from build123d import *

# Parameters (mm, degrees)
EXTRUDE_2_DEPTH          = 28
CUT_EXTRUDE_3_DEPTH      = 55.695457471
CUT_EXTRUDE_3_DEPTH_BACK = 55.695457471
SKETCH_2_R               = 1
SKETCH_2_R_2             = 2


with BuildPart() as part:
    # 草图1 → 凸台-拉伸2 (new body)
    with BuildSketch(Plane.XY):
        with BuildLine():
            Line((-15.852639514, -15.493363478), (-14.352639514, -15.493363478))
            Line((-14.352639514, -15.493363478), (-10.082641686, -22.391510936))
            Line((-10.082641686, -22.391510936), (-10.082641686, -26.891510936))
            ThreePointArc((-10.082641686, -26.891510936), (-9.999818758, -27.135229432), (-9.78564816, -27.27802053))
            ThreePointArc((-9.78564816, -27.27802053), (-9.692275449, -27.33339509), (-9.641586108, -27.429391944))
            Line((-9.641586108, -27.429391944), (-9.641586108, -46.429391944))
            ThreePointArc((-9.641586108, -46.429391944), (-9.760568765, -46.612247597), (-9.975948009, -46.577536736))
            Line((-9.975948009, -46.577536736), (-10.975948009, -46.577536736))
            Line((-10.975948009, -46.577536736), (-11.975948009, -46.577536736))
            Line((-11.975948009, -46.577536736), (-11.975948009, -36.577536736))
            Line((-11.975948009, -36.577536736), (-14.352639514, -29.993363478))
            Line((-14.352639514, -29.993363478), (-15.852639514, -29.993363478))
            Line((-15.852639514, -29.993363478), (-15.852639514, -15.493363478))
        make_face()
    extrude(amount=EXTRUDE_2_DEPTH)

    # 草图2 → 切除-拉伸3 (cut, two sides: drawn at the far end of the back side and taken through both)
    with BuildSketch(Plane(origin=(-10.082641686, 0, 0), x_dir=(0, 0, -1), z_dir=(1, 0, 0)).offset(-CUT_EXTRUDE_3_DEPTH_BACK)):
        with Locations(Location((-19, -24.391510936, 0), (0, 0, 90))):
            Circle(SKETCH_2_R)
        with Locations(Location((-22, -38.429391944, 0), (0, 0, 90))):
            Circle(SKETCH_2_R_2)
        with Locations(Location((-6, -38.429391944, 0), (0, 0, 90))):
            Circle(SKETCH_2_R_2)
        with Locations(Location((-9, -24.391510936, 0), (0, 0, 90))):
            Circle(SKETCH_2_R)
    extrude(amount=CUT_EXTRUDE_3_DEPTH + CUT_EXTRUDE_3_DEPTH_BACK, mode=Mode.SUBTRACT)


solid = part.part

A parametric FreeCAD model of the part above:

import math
import FreeCAD as App
import Part
import Sketcher

V = App.Vector

doc = App.newDocument("Part")
body = doc.addObject("PartDesign::Body", "Body")

sketch1 = doc.addObject("Sketcher::SketchObject", "Sketch")
body.addObject(sketch1)
sketch1.AttachmentSupport = (doc.XY_Plane, [""])
sketch1.MapMode = "FlatFace"
sketch1.addGeometry([
    Part.LineSegment(V(-14.35, -15.49, 0), V(-15.85, -15.49, 0)),
    Part.LineSegment(V(-15.85, -15.49, 0), V(-15.85, -29.99, 0)),
    Part.LineSegment(V(-15.85, -29.99, 0), V(-14.35, -29.99, 0)),
    Part.LineSegment(V(-14.35, -29.99, 0), V(-11.98, -36.58, 0)),
    Part.LineSegment(V(-11.98, -36.58, 0), V(-11.98, -46.58, 0)),
    Part.LineSegment(V(-11.98, -46.58, 0), V(-9.98, -46.58, 0)),
    Part.ArcOfCircle(Part.Circle(V(-9.84, -46.43, 0), V(0, 0, 1), 0.2), math.radians(-132), math.radians(0)),
    Part.LineSegment(V(-9.64, -46.43, 0), V(-9.64, -27.43, 0)),
    Part.ArcOfCircle(Part.Circle(V(-9.84, -27.47, 0), V(0, 0, 1), 0.2), math.radians(12), math.radians(75)),
    Part.ArcOfCircle(Part.Circle(V(-9.68, -26.89, 0), V(0, 0, 1), 0.4), math.radians(180), math.radians(255)),
    Part.LineSegment(V(-10.08, -26.89, 0), V(-10.08, -22.39, 0)),
    Part.LineSegment(V(-10.08, -22.39, 0), V(-14.35, -15.49, 0)),
], False)
sketch1.addConstraint([
    Sketcher.Constraint("Coincident", 0, 2, 1, 1),
    Sketcher.Constraint("Coincident", 1, 2, 2, 1),
    Sketcher.Constraint("Coincident", 2, 2, 3, 1),
    Sketcher.Constraint("Coincident", 3, 2, 4, 1),
    Sketcher.Constraint("Coincident", 4, 2, 5, 1),
    Sketcher.Constraint("Coincident", 5, 2, 6, 1),
    Sketcher.Constraint("Tangent", 6, 2, 7, 1),
    Sketcher.Constraint("Coincident", 7, 2, 8, 1),
    Sketcher.Constraint("Tangent", 8, 2, 9, 2),
    Sketcher.Constraint("Tangent", 9, 1, 10, 1),
    Sketcher.Constraint("Coincident", 10, 2, 11, 1),
    Sketcher.Constraint("Coincident", 11, 2, 0, 1),
    Sketcher.Constraint("Horizontal", 0),
    Sketcher.Constraint("Vertical", 1),
    Sketcher.Constraint("Horizontal", 2),
    Sketcher.Constraint("Vertical", 4),
    Sketcher.Constraint("Horizontal", 5),
    Sketcher.Constraint("Vertical", 7),
    Sketcher.Constraint("Vertical", 10),
    Sketcher.Constraint("Equal", 6, 8),
    Sketcher.Constraint("Vertical", 2, 2, 11, 2),
    Sketcher.Constraint("Radius", 6, 0.2),
    Sketcher.Constraint("Radius", 9, 0.4),
    Sketcher.Constraint("DistanceX", 5, 1, 5, 2, 2.0),
    Sketcher.Constraint("DistanceY", 4, 2, 4, 1, 10.0),
    Sketcher.Constraint("DistanceY", 7, 1, 7, 2, 19.0),
    Sketcher.Constraint("Distance", 3, 7.0),
    Sketcher.Constraint("DistanceX", 0, 2, 0, 1, 1.5),
    Sketcher.Constraint("DistanceY", 1, 2, 1, 1, 14.5),
    Sketcher.Constraint("DistanceY", 10, 1, 10, 2, 4.5),
    Sketcher.Constraint("DistanceY", 6, 3, -1, 1, 46.429392),
    Sketcher.Constraint("DistanceX", 8, 3, -1, 1, 9.837151),
    Sketcher.Constraint("DistanceX", 9, 3, -1, 1, 9.682642),
    Sketcher.Constraint("DistanceY", 9, 3, -1, 1, 26.891511),
    Sketcher.Constraint("DistanceX", 0, 2, -1, 1, 15.85264),
    Sketcher.Constraint("DistanceX", 3, 2, -1, 1, 11.975948),
])
pad1 = doc.addObject("PartDesign::Pad", "Pad")
body.addObject(pad1)
pad1.Profile = sketch1
pad1.Length = 28

sketch2 = doc.addObject("Sketcher::SketchObject", "Sketch001")
body.addObject(sketch2)
sketch2.AttachmentSupport = (doc.YZ_Plane, [""])
sketch2.MapMode = "FlatFace"
sketch2.AttachmentOffset = App.Placement(V(0, 0, -10.082642), App.Rotation())
sketch2.addGeometry([
    Part.Circle(V(-24.4, 19, 0), V(0, 0, 1), 1),
    Part.Circle(V(-38.4, 22, 0), V(0, 0, 1), 2),
    Part.Circle(V(-38.4, 6, 0), V(0, 0, 1), 2),
    Part.Circle(V(-24.4, 9, 0), V(0, 0, 1), 1),
], False)
sketch2.addConstraint([
    Sketcher.Constraint("Equal", 1, 2),
    Sketcher.Constraint("Equal", 0, 3),
    Sketcher.Constraint("Vertical", 1, 3, 2, 3),
    Sketcher.Constraint("Vertical", 0, 3, 3, 3),
    Sketcher.Constraint("Diameter", 0, 2.0),
    Sketcher.Constraint("Diameter", 1, 4.0),
    Sketcher.Constraint("DistanceY", -1, 1, 0, 3, 19.0),
    Sketcher.Constraint("DistanceY", -1, 1, 1, 3, 22.0),
    Sketcher.Constraint("DistanceY", -1, 1, 2, 3, 6.0),
    Sketcher.Constraint("DistanceY", -1, 1, 3, 3, 9.0),
    Sketcher.Constraint("DistanceX", 0, 3, -1, 1, 24.391511),
    Sketcher.Constraint("DistanceX", 1, 3, -1, 1, 38.429392),
])
pocket1 = doc.addObject("PartDesign::Pocket", "Pocket")
body.addObject(pocket1)
pocket1.Profile = sketch2
pocket1.Type = "ThroughAll"
pocket1.Midplane = True

doc.recompute()
